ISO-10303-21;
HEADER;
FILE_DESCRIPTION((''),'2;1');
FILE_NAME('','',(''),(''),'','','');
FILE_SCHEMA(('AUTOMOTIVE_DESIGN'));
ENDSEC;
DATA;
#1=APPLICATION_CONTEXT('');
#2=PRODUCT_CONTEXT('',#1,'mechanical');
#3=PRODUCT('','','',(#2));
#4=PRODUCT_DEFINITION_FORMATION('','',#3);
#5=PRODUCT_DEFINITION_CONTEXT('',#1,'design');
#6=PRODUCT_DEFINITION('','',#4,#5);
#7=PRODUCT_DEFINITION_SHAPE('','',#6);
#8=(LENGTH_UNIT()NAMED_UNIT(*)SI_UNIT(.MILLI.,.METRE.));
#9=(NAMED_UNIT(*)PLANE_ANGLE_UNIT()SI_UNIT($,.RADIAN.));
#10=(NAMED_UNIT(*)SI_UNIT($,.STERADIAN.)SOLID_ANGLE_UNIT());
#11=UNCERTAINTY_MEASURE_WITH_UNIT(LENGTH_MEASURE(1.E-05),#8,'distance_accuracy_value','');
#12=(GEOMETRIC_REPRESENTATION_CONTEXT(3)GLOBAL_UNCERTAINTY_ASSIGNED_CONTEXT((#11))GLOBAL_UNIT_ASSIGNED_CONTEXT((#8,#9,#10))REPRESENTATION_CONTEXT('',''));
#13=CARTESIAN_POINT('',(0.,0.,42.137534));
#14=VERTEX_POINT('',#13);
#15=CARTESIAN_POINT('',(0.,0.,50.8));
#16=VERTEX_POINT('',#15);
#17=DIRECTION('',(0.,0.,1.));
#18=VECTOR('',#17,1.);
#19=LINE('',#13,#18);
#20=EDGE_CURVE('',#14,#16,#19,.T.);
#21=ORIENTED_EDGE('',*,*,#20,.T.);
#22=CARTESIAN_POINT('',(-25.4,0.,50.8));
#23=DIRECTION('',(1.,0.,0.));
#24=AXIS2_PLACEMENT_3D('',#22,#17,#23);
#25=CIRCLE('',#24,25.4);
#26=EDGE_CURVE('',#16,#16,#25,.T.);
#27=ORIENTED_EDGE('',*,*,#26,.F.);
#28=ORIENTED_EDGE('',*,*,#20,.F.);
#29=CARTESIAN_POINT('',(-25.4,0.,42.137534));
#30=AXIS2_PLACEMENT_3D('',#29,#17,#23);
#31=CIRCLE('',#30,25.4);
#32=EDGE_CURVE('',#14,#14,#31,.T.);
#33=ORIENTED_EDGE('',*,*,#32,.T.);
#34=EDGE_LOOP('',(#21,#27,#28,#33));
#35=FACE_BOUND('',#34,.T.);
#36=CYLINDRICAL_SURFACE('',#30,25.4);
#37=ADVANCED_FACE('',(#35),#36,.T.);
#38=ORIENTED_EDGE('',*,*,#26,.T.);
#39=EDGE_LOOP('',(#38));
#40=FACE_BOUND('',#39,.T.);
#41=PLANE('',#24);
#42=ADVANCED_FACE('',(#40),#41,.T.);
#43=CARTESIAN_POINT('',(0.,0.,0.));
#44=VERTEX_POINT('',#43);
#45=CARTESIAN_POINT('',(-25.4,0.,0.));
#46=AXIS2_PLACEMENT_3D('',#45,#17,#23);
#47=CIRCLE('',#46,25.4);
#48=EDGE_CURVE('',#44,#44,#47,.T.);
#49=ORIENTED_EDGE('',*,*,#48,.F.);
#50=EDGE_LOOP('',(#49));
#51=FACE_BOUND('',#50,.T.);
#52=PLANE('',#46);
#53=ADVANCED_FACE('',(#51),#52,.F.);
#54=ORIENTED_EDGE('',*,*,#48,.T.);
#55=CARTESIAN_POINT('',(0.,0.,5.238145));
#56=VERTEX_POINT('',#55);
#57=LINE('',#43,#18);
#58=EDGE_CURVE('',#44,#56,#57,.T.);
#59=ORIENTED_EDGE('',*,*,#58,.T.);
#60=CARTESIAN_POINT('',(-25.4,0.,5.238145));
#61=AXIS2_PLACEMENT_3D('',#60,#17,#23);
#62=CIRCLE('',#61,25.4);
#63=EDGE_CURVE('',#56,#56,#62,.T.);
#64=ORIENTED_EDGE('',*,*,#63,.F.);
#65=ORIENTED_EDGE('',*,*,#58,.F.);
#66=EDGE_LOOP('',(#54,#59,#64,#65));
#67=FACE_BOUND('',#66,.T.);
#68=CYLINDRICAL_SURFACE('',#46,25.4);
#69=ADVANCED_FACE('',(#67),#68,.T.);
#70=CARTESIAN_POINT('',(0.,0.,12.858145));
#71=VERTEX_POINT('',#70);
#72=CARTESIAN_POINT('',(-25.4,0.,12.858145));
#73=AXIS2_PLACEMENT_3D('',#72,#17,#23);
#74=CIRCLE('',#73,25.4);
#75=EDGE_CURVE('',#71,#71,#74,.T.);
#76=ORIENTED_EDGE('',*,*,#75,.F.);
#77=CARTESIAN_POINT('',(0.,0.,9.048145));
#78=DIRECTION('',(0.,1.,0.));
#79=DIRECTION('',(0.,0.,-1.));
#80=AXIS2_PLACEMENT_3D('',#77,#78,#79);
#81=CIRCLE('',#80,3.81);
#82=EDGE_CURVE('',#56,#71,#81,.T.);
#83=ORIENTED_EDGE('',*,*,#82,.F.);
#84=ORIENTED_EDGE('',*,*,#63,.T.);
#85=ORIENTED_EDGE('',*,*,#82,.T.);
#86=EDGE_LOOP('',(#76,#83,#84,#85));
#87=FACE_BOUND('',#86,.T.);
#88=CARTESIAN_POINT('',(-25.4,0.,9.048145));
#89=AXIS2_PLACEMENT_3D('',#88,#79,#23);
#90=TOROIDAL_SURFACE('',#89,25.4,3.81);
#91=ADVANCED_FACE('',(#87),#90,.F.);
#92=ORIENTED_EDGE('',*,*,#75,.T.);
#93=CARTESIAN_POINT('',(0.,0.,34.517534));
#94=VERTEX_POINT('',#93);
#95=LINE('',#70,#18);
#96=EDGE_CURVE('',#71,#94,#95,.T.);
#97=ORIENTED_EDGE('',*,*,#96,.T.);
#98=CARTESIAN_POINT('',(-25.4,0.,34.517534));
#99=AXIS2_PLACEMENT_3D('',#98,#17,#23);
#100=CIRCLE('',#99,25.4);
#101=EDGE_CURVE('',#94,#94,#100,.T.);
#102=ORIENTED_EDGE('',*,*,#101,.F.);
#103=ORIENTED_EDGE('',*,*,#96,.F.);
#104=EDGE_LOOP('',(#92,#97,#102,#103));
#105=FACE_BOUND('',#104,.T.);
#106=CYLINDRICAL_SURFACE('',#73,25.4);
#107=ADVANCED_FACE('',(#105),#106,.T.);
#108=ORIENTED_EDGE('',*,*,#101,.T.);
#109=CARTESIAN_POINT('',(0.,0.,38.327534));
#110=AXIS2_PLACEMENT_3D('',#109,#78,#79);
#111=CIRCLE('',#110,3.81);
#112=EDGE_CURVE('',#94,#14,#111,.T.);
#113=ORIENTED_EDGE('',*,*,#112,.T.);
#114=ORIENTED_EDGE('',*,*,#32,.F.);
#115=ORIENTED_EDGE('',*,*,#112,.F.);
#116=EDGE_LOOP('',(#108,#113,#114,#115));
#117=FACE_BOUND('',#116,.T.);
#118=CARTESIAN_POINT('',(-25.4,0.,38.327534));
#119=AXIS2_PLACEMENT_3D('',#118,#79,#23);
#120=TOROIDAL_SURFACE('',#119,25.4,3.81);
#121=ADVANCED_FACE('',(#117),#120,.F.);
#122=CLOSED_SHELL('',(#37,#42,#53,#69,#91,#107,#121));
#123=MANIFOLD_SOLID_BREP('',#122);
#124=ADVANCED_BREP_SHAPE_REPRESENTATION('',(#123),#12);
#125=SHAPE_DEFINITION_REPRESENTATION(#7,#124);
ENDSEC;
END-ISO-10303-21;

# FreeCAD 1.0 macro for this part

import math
import FreeCAD as App
import Part
import Sketcher

V = App.Vector
Q = App.Units.Quantity

doc = App.newDocument("Part")
body = doc.addObject("PartDesign::Body", "Body")

sketch1 = body.newObject("Sketcher::SketchObject", "Sketch")
sketch1.AttachmentSupport = (doc.getObject("XZ_Plane"), [""])
sketch1.MapMode = "FlatFace"
sketch1.addGeometry([
    Part.LineSegment(V(-25.4, 0, 0), V(0, 0, 0)),
    Part.LineSegment(V(0, 0, 0), V(0, 5.2, 0)),
    Part.ArcOfCircle(Part.Circle(V(0, 9, 0), V(0, 0, 1), 3.8), math.radians(90), math.radians(270)),
    Part.LineSegment(V(0, 12.9, 0), V(0, 34.5, 0)),
    Part.ArcOfCircle(Part.Circle(V(0, 38.3, 0), V(0, 0, 1), 3.8), math.radians(90), math.radians(270)),
    Part.LineSegment(V(0, 42.1, 0), V(0, 50.8, 0)),
    Part.LineSegment(V(0, 50.8, 0), V(-25.4, 50.8, 0)),
    Part.LineSegment(V(-25.4, 50.8, 0), V(-25.4, 0, 0)),
], False)
sketch1.addGeometry(Part.LineSegment(V(-25.4, 0, 0), V(-25.4, 50.8, 0)), True)
sketch1.addConstraint([
    Sketcher.Constraint("Coincident", 0, 2, 1, 1),
    Sketcher.Constraint("Coincident", 1, 2, 2, 2),
    Sketcher.Constraint("Coincident", 2, 1, 3, 1),
    Sketcher.Constraint("Coincident", 3, 2, 4, 2),
    Sketcher.Constraint("Coincident", 4, 1, 5, 1),
    Sketcher.Constraint("Coincident", 5, 2, 6, 1),
    Sketcher.Constraint("Coincident", 6, 2, 7, 1),
    Sketcher.Constraint("Coincident", 7, 2, 0, 1),
    Sketcher.Constraint("Horizontal", 0),
    Sketcher.Constraint("Vertical", 1),
    Sketcher.Constraint("Vertical", 3),
    Sketcher.Constraint("Vertical", 5),
    Sketcher.Constraint("Horizontal", 6),
    Sketcher.Constraint("Vertical", 7),
    Sketcher.Constraint("Vertical", 8),
    Sketcher.Constraint("Coincident", 0, 2, -1, 1),
    Sketcher.Constraint("Coincident", 8, 1, 7, 2),
    Sketcher.Constraint("Equal", 2, 4),
    Sketcher.Constraint("PointOnObject", 2, 3, -2),
    Sketcher.Constraint("PointOnObject", 4, 3, -2),
    Sketcher.Constraint("PointOnObject", 2, 1, -2),
    Sketcher.Constraint("PointOnObject", 4, 1, -2),
    Sketcher.Constraint("Horizontal", 5, 2, 8, 2),
    Sketcher.Constraint("DistanceX", 0, 1, 0, 2, Q("1 in")),
    Sketcher.Constraint("DistanceY", 7, 2, 7, 1, Q("2 in")),
    Sketcher.Constraint("Radius", 2, Q("0.15 in")),
    Sketcher.Constraint("DistanceY", 3, 1, 3, 2, Q("21.659389 mm")),
    Sketcher.Constraint("DistanceY", 1, 1, 1, 2, Q("5.238145 mm")),
])
revolution = body.newObject("PartDesign::Revolution", "Revolution")
revolution.Profile = sketch1
revolution.ReferenceAxis = (sketch1, ["Axis0"])
revolution.Angle = 360

doc.recompute()
